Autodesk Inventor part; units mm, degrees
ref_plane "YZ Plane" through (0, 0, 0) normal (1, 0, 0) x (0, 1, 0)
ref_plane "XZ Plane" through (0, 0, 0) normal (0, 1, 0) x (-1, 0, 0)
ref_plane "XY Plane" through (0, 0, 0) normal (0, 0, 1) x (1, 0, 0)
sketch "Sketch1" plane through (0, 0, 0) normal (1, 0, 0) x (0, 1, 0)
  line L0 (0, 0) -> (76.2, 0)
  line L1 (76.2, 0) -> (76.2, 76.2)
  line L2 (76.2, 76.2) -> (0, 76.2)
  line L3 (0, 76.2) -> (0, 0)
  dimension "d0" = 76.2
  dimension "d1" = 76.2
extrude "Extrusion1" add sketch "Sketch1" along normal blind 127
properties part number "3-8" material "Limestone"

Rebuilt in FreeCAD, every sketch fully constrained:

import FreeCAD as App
import Part
import Sketcher

V = App.Vector
Q = App.Units.Quantity


def add_polygon(sketch, points):
    """Adds a closed chain of lines whose ends are joined by coincident constraints."""
    first, n = sketch.GeometryCount, len(points)
    for a, b in zip(points, points[1:] + points[:1]):
        sketch.addGeometry(Part.LineSegment(App.Vector(*a, 0), App.Vector(*b, 0)), False)
    for i in range(n):
        sketch.addConstraint(Sketcher.Constraint("Coincident", first + i, 2, first + (i + 1) % n, 1))

doc = App.newDocument("Part")
body = doc.addObject("PartDesign::Body", "Body")

# Sketch on YZ plane
sketch1 = body.newObject("Sketcher::SketchObject", "Sketch")
sketch1.AttachmentSupport = (doc.getObject("YZ_Plane"), [""])
sketch1.MapMode = "FlatFace"
add_polygon(sketch1, [(0, 76.2), (0, 0), (76.2, 0), (76.2, 76.2)])  # lines 0-3
sketch1.addConstraint([
    Sketcher.Constraint("Vertical", 0),
    Sketcher.Constraint("Horizontal", 1),
    Sketcher.Constraint("Vertical", 2),
    Sketcher.Constraint("Horizontal", 3),
    Sketcher.Constraint("Coincident", 0, 2, -1, 1),
    Sketcher.Constraint("Equal", 3, 0),
    Sketcher.Constraint("DistanceX", 1, 1, 1, 2, Q("3 in")),
])
pad1 = body.newObject("PartDesign::Pad", "Pad")
pad1.Profile = sketch1
pad1.Length = Q("5 in")

doc.recompute()
